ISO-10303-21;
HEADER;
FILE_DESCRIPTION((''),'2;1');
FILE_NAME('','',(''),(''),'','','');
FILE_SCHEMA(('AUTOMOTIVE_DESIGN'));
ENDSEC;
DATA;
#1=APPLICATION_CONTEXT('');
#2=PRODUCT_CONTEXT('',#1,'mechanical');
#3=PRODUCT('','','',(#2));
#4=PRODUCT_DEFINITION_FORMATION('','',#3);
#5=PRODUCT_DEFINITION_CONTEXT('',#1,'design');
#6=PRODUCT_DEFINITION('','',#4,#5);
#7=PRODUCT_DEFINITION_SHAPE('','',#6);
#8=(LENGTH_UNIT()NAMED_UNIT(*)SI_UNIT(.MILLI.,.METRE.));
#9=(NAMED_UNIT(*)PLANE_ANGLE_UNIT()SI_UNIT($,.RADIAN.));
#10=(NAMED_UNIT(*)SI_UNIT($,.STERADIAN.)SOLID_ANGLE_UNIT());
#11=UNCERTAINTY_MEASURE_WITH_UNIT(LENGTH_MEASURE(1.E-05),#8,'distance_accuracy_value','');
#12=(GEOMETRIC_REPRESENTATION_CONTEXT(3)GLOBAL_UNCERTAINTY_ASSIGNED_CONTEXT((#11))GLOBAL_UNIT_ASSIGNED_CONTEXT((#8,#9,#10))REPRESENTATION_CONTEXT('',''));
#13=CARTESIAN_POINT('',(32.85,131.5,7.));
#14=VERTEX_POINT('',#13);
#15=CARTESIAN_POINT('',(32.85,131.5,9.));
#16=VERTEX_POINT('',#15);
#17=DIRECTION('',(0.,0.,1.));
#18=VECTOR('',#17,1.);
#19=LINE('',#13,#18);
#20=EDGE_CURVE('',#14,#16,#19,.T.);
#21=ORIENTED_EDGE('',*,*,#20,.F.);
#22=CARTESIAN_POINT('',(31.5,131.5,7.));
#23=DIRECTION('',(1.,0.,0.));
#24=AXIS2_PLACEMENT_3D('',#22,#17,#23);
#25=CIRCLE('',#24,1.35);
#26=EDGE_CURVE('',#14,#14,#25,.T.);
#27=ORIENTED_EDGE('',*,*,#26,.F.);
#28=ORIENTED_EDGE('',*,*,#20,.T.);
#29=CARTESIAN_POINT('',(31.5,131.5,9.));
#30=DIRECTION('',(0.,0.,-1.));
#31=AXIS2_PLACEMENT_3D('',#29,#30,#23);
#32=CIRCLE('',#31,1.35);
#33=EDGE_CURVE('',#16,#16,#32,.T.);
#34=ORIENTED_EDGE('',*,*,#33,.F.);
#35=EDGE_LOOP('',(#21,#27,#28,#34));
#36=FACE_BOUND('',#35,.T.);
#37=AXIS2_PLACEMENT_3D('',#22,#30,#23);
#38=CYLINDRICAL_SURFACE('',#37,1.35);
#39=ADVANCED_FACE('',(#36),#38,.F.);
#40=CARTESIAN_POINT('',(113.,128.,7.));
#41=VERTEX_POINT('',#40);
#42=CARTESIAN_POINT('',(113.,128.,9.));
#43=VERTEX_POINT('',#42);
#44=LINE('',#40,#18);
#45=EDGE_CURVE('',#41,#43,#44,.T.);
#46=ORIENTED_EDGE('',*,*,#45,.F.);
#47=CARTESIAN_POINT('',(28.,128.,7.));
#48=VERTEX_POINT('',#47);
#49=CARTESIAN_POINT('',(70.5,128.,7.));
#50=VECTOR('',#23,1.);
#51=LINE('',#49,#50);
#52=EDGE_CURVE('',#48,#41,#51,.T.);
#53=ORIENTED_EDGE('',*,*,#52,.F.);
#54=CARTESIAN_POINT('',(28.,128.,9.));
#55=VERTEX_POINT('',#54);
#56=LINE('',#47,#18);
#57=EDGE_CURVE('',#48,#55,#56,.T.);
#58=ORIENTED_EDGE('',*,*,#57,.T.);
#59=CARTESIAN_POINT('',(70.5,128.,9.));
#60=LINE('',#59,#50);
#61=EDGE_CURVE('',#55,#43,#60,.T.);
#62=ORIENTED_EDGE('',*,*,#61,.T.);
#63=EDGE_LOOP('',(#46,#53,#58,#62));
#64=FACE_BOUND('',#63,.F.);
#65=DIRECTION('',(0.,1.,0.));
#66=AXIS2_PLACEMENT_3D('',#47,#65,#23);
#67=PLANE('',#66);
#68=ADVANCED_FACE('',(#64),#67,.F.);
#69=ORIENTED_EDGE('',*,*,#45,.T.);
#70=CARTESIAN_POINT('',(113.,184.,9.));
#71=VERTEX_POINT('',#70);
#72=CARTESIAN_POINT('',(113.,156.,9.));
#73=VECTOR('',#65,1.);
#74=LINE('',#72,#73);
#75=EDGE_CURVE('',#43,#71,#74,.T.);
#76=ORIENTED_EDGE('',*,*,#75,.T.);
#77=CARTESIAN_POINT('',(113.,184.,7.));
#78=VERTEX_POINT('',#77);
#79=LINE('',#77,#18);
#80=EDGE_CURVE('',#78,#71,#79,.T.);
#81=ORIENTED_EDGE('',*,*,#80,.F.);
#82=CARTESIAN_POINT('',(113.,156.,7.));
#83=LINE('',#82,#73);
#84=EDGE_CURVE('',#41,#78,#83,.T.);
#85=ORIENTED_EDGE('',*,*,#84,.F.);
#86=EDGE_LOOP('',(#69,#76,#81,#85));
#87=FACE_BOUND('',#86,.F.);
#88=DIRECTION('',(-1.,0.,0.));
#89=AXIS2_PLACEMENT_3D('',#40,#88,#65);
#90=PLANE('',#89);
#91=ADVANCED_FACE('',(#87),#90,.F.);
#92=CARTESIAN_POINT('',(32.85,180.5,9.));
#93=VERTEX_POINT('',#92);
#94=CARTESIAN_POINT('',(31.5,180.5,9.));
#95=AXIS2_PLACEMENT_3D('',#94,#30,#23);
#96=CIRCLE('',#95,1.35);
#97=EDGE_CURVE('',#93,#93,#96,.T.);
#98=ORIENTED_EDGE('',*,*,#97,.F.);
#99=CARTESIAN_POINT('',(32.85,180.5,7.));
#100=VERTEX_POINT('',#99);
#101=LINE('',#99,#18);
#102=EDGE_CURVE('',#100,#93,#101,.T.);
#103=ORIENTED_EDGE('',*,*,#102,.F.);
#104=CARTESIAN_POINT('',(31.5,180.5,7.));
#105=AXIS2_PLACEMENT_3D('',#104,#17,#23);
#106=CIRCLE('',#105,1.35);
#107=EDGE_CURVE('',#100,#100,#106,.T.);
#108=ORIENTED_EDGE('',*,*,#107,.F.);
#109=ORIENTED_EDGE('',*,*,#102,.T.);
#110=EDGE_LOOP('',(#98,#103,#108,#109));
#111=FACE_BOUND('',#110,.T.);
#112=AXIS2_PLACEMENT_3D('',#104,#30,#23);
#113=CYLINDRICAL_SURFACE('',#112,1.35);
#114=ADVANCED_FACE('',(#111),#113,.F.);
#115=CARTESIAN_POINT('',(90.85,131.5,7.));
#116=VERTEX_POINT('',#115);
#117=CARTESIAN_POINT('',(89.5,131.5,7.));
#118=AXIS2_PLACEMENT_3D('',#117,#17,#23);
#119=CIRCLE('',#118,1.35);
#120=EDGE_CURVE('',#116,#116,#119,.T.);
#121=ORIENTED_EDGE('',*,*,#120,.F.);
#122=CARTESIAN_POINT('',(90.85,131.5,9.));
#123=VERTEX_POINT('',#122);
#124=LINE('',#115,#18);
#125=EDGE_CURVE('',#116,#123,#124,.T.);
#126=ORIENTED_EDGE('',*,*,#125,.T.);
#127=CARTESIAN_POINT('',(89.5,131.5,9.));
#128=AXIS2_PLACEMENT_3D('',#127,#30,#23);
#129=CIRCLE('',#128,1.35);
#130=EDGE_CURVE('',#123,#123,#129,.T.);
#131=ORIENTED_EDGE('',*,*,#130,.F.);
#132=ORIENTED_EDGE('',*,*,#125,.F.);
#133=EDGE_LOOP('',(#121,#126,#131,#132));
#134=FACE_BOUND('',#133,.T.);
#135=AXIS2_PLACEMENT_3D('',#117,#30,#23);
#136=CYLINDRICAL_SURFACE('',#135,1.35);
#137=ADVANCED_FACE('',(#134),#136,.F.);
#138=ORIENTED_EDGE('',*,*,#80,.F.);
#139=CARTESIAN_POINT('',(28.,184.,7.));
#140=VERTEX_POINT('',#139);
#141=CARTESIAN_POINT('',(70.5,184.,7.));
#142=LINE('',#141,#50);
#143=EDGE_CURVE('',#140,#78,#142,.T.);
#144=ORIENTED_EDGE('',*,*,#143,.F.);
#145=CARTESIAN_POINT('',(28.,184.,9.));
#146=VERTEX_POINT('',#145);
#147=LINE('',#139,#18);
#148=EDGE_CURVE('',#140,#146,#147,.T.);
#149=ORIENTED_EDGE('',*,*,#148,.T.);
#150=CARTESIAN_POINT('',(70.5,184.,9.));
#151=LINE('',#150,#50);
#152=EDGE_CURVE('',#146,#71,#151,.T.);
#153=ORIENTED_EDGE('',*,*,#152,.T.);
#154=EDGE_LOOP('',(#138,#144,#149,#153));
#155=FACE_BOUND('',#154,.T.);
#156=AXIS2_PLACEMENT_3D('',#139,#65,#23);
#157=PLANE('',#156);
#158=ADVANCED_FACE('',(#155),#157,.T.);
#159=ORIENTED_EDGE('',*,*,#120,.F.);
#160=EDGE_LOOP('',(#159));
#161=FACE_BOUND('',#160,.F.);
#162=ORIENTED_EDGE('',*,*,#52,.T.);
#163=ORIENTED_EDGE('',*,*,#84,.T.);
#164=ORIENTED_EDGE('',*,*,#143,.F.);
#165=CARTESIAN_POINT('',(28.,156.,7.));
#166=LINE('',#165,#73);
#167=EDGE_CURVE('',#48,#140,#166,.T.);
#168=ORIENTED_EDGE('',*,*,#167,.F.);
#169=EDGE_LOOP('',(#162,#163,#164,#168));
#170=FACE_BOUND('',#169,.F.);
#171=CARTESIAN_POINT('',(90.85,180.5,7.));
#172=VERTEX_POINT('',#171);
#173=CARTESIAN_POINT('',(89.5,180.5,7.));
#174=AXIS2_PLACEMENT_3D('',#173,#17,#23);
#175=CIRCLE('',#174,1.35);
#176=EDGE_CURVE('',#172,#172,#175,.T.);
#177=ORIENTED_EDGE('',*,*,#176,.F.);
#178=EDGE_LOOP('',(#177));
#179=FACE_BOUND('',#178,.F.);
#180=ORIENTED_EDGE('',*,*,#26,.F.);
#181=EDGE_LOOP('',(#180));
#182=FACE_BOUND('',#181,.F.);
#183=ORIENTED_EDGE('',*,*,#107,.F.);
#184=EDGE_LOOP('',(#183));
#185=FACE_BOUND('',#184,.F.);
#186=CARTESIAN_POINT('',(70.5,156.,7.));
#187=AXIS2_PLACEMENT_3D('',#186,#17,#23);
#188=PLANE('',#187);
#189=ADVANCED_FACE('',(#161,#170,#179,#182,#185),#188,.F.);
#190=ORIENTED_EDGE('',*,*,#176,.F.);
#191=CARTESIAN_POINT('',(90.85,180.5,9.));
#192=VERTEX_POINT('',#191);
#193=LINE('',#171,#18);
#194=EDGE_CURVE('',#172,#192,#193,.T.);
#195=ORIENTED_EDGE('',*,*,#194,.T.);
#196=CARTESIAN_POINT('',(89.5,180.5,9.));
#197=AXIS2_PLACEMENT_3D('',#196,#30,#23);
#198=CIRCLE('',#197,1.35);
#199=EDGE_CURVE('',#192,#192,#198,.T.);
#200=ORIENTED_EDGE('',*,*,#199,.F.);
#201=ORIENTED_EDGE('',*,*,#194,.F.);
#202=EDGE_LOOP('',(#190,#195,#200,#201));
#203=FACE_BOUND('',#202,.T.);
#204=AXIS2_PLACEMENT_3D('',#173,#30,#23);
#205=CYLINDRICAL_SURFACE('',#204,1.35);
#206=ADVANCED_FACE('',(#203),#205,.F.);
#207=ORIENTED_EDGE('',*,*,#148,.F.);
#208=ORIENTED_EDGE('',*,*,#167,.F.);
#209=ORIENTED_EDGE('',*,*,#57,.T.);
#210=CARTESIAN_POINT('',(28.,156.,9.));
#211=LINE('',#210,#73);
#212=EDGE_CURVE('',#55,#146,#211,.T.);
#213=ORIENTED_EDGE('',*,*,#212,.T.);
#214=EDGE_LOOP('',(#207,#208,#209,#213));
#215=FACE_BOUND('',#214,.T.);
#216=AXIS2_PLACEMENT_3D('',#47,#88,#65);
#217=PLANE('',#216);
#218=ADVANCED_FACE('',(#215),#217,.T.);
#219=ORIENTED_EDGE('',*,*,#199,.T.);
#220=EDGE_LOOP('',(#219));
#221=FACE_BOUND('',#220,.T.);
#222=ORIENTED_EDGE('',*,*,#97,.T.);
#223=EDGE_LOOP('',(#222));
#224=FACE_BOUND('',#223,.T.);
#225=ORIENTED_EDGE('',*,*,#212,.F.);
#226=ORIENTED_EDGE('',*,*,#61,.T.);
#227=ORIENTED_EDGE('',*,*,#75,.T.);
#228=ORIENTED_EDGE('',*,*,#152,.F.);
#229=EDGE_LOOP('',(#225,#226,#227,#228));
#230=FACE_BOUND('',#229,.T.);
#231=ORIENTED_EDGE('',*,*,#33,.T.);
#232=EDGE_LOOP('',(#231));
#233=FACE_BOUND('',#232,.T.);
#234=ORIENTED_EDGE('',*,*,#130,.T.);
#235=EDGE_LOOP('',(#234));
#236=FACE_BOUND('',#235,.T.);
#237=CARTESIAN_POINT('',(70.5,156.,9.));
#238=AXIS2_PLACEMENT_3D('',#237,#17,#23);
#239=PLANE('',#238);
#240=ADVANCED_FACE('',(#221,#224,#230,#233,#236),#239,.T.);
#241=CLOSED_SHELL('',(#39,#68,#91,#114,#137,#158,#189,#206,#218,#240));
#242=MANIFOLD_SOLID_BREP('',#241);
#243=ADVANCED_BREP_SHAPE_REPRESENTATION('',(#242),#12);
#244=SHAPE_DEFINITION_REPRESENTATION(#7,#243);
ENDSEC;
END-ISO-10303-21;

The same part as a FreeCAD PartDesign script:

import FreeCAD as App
import Part
import Sketcher
Q = App.Units.Quantity


def add_polygon(sketch, points):
    """Adds a closed chain of lines whose ends are joined by coincident constraints."""
    first, n = sketch.GeometryCount, len(points)
    for a, b in zip(points, points[1:] + points[:1]):
        sketch.addGeometry(Part.LineSegment(App.Vector(*a, 0), App.Vector(*b, 0)), False)
    for i in range(n):
        sketch.addConstraint(Sketcher.Constraint("Coincident", first + i, 2, first + (i + 1) % n, 1))

doc = App.newDocument("Part")
params = doc.addObject("Spreadsheet::Sheet", "Params")
for row, (alias, value) in enumerate([
    ("sketch1_diameter", "2.7 mm"),
    ("pad1_length", "10 mm"),
    ("sketch2_diameter", "2.7 mm"),
    ("pad2_length", "10 mm"),
    ("sketch3_diameter", "2.7 mm"),
    ("pad3_length", "10 mm"),
    ("sketch4_diameter", "2.7 mm"),
    ("pad4_length", "10 mm"),
    ("sketch5_width", "85 mm"),
    ("sketch5_height", "56 mm"),
    ("pad5_length", "2 mm"),
], start=1):
    params.set(f"A{row}", alias)
    params.set(f"B{row}", "=" + value)
    params.setAlias(f"B{row}", alias)

body = doc.addObject("PartDesign::Body", "Body")

# Sketch on XY plane
sketch1 = body.newObject("Sketcher::SketchObject", "Sketch")
sketch1.AttachmentSupport = (doc.getObject("XY_Plane"), [""])
sketch1.MapMode = "FlatFace"
sketch1.addGeometry(Part.Circle(App.Vector(61.5, 52.5, 0), App.Vector(0, 0, 1), 1.4), False)
sketch1.addConstraint([
    Sketcher.Constraint("Diameter", 0, Q("2.7 mm")),
    Sketcher.Constraint("DistanceX", -1, 1, 0, 3, Q("61.5 mm")),
    Sketcher.Constraint("DistanceY", -1, 1, 0, 3, Q("52.5 mm")),
])
sketch1.setExpression("Constraints[0]", "Params.sketch1_diameter")
pad1 = body.newObject("PartDesign::Pad", "Pad")
pad1.Profile = sketch1
pad1.setExpression("Length", "Params.pad1_length")
body2 = doc.addObject("PartDesign::Body", "Body001")

# Sketch on XY plane
sketch2 = body2.newObject("Sketcher::SketchObject", "Sketch001")
sketch2.AttachmentSupport = (doc.getObject("XY_Plane001"), [""])
sketch2.MapMode = "FlatFace"
sketch2.addGeometry(Part.Circle(App.Vector(3.5, 52.5, 0), App.Vector(0, 0, 1), 1.4), False)
sketch2.addConstraint([
    Sketcher.Constraint("Diameter", 0, Q("2.7 mm")),
    Sketcher.Constraint("DistanceX", -1, 1, 0, 3, Q("3.5 mm")),
    Sketcher.Constraint("DistanceY", -1, 1, 0, 3, Q("52.5 mm")),
])
sketch2.setExpression("Constraints[0]", "Params.sketch2_diameter")
pad2 = body2.newObject("PartDesign::Pad", "Pad001")
pad2.Profile = sketch2
pad2.setExpression("Length", "Params.pad2_length")
body3 = doc.addObject("PartDesign::Body", "Body002")

# Sketch on XY plane
sketch3 = body3.newObject("Sketcher::SketchObject", "Sketch002")
sketch3.AttachmentSupport = (doc.getObject("XY_Plane002"), [""])
sketch3.MapMode = "FlatFace"
sketch3.addGeometry(Part.Circle(App.Vector(3.5, 3.5, 0), App.Vector(0, 0, 1), 1.4), False)
sketch3.addConstraint([
    Sketcher.Constraint("Diameter", 0, Q("2.7 mm")),
    Sketcher.Constraint("DistanceX", -1, 1, 0, 3, Q("3.5 mm")),
    Sketcher.Constraint("DistanceY", -1, 1, 0, 3, Q("3.5 mm")),
])
sketch3.setExpression("Constraints[0]", "Params.sketch3_diameter")
pad3 = body3.newObject("PartDesign::Pad", "Pad002")
pad3.Profile = sketch3
pad3.setExpression("Length", "Params.pad3_length")
body4 = doc.addObject("PartDesign::Body", "Body003")
body4.AllowCompound = True

# Sketch on XY plane
sketch4 = body4.newObject("Sketcher::SketchObject", "Sketch003")
sketch4.AttachmentSupport = (doc.getObject("XY_Plane003"), [""])
sketch4.MapMode = "FlatFace"
sketch4.addGeometry(Part.Circle(App.Vector(61.5, 3.5, 0), App.Vector(0, 0, 1), 1.4), False)
sketch4.addConstraint([
    Sketcher.Constraint("Diameter", 0, Q("2.7 mm")),
    Sketcher.Constraint("DistanceX", -1, 1, 0, 3, Q("61.5 mm")),
    Sketcher.Constraint("DistanceY", -1, 1, 0, 3, Q("3.5 mm")),
])
sketch4.setExpression("Constraints[0]", "Params.sketch4_diameter")
pad4 = body4.newObject("PartDesign::Pad", "Pad003")
pad4.Profile = sketch4
pad4.setExpression("Length", "Params.pad4_length")
doc.recompute()

boolean = body4.newObject("PartDesign::Boolean", "Boolean")
boolean.Type = "Fuse"
boolean.addObjects([body])
doc.recompute()

boolean2 = body4.newObject("PartDesign::Boolean", "Boolean001")
boolean2.Type = "Fuse"
boolean2.addObjects([body2])
doc.recompute()

boolean3 = body4.newObject("PartDesign::Boolean", "Boolean002")
boolean3.Type = "Fuse"
boolean3.addObjects([body3])
body5 = doc.addObject("PartDesign::Body", "Body004")

# Sketch on XY plane
sketch5 = body5.newObject("Sketcher::SketchObject", "Sketch004")
sketch5.AttachmentSupport = (doc.getObject("XY_Plane004"), [""])
sketch5.MapMode = "FlatFace"
add_polygon(sketch5, [(0, 56), (0, 0), (85, 0), (85, 56)])  # lines 0-3
sketch5.addConstraint([
    Sketcher.Constraint("Vertical", 0),
    Sketcher.Constraint("Horizontal", 1),
    Sketcher.Constraint("Vertical", 2),
    Sketcher.Constraint("Horizontal", 3),
    Sketcher.Constraint("Coincident", 0, 2, -1, 1),
    Sketcher.Constraint("DistanceX", 1, 1, 1, 2, Q("85 mm")),
    Sketcher.Constraint("DistanceY", 0, 2, 0, 1, Q("56 mm")),
])
sketch5.setExpression("Constraints[9]", "Params.sketch5_width")
sketch5.setExpression("Constraints[10]", "Params.sketch5_height")
pad5 = body5.newObject("PartDesign::Pad", "Pad004")
pad5.Profile = sketch5
pad5.setExpression("Length", "Params.pad5_length")
doc.recompute()

boolean4 = body5.newObject("PartDesign::Boolean", "Boolean003")
boolean4.Type = "Cut"
boolean4.addObjects([body4])
body6 = doc.addObject("PartDesign::Body", "Body005")
doc.recompute()

body5.Placement = App.Placement(App.Vector(28, 128, 7), App.Rotation(App.Vector(0, 0, 1), 0))
boolean5 = body6.newObject("PartDesign::Boolean", "Boolean004")
boolean5.Type = "Fuse"
boolean5.addObjects([body5])

doc.recompute()
